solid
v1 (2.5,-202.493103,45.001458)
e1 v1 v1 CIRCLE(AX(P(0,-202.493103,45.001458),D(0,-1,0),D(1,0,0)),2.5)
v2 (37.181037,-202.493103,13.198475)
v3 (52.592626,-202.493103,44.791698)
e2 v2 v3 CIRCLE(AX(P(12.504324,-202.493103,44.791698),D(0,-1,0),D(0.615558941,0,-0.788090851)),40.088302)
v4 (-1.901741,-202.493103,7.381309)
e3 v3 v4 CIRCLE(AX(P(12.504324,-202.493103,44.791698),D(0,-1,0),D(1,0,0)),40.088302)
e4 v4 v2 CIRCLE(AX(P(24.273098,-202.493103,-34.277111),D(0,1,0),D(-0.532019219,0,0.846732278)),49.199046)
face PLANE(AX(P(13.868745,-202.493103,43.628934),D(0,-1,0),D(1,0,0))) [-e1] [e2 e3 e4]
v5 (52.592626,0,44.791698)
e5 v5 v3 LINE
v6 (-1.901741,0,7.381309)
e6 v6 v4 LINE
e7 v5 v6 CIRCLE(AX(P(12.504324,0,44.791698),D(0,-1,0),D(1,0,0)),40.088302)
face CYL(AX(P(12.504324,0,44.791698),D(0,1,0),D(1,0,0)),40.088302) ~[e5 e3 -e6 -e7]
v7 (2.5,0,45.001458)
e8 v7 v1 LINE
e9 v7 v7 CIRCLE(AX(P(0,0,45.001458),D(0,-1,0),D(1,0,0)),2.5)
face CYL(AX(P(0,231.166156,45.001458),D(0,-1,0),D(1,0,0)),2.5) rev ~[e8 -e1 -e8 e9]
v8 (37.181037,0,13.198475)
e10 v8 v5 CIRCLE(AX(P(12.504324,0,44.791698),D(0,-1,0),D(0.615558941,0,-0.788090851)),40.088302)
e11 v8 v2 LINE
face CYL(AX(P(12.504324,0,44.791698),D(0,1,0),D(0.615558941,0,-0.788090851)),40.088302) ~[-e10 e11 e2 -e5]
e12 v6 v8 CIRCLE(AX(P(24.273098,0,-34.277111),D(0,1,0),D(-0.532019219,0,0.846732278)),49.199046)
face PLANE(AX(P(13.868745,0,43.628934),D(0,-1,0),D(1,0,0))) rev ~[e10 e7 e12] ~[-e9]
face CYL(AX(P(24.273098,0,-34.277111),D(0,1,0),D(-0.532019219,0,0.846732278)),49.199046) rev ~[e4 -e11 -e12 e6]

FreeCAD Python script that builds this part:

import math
import FreeCAD as App
import Part
import Sketcher

doc = App.newDocument("Part")
body = doc.addObject("PartDesign::Body", "Body")

sketch1 = doc.addObject("Sketcher::SketchObject", "Sketch")
body.addObject(sketch1)
sketch1.AttachmentSupport = (doc.XZ_Plane, [""])
sketch1.MapMode = "FlatFace"
sketch1.addGeometry([
    Part.ArcOfCircle(Part.Circle(App.Vector(12.504324, 44.791698, 0), App.Vector(0, 0, 1), 40.088302), math.radians(-52.007455), math.radians(0)),
    Part.ArcOfCircle(Part.Circle(App.Vector(12.504324, 44.791698, 0), App.Vector(0, 0, 1), 40.088302), math.radians(0), math.radians(248.939206)),
    Part.ArcOfCircle(Part.Circle(App.Vector(24.273098, -34.277111, 0), App.Vector(0, 0, 1), 49.199046), math.radians(74.789764), math.radians(122.141987)),
], False)
sketch1.addConstraint([
    Sketcher.Constraint("Tangent", 0, 2, 1, 1),
    Sketcher.Constraint("Coincident", 1, 2, 2, 2),
    Sketcher.Constraint("Coincident", 2, 1, 0, 1),
    Sketcher.Constraint("Equal", 0, 1),
    Sketcher.Constraint("Horizontal", 1, 3, 0, 2),
    Sketcher.Constraint("Radius", 0, 40.088302),
    Sketcher.Constraint("Radius", 2, 49.199046),
    Sketcher.Constraint("DistanceY", -1, 1, 0, 3, 44.791698),
    Sketcher.Constraint("DistanceY", 2, 3, -1, 1, 34.277111),
    Sketcher.Constraint("DistanceX", 1, 2, -1, 1, 1.901741),
    Sketcher.Constraint("DistanceY", -1, 1, 1, 2, 7.381309),
])
pad1 = doc.addObject("PartDesign::Pad", "Pad")
body.addObject(pad1)
pad1.Profile = sketch1
pad1.Length = 202.493103

sketch2 = doc.addObject("Sketcher::SketchObject", "Sketch001")
body.addObject(sketch2)
sketch2.AttachmentSupport = (doc.XZ_Plane, [""])
sketch2.MapMode = "FlatFace"
sketch2.addGeometry(Part.Circle(App.Vector(0, 45.001458, 0), App.Vector(0, 0, 1), 2.5), False)
sketch2.addConstraint([
    Sketcher.Constraint("PointOnObject", 0, 3, -2),
    Sketcher.Constraint("Diameter", 0, 5.0),
    Sketcher.Constraint("DistanceY", -1, 1, 0, 3, 45.001458),
])
doc.recompute()
hole = doc.addObject("PartDesign::Hole", "Hole")
body.addObject(hole)
hole.Profile = sketch2
hole.ThreadType = "None"
hole.Diameter = 5
hole.DepthType = "ThroughAll"
hole.Reversed = True

doc.recompute()
